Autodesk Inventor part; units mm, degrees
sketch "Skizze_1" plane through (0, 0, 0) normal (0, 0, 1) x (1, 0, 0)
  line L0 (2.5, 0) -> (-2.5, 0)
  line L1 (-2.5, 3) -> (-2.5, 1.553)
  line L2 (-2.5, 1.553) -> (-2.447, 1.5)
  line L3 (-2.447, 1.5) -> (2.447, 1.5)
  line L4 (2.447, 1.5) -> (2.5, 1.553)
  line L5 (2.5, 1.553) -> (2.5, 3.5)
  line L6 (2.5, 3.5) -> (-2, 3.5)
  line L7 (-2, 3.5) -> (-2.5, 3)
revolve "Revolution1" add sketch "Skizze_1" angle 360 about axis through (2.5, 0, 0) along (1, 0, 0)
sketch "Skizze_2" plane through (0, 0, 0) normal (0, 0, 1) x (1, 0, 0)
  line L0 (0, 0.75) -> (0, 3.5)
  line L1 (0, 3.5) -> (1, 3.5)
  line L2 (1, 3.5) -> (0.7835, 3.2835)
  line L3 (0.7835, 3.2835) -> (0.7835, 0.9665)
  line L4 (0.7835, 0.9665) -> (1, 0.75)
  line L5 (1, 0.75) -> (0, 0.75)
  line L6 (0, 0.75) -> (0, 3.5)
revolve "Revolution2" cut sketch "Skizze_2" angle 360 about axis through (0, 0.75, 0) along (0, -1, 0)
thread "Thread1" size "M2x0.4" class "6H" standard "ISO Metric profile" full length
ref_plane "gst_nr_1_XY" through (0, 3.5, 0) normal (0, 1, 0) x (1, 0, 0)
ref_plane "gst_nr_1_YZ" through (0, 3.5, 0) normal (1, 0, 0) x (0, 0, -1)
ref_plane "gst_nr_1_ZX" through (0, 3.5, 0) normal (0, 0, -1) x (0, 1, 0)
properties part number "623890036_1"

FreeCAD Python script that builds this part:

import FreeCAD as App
import Part
import Sketcher
Q = App.Units.Quantity

doc = App.newDocument("Part")
body = doc.addObject("PartDesign::Body", "Body")

# Sketch on XY plane
sketch1 = body.newObject("Sketcher::SketchObject", "Sketch")
sketch1.AttachmentSupport = (doc.getObject("XY_Plane"), [""])
sketch1.MapMode = "FlatFace"
sketch1.addGeometry([
    Part.LineSegment(App.Vector(-2, 3.5, 0), App.Vector(-2.5, 3, 0)),  # 0
    Part.LineSegment(App.Vector(-2.5, 3, 0), App.Vector(-2.5, 1.55, 0)),  # 1
    Part.LineSegment(App.Vector(-2.5, 1.55, 0), App.Vector(-2.45, 1.5, 0)),  # 2
    Part.LineSegment(App.Vector(-2.45, 1.5, 0), App.Vector(2.45, 1.5, 0)),  # 3
    Part.LineSegment(App.Vector(2.45, 1.5, 0), App.Vector(2.5, 1.55, 0)),  # 4
    Part.LineSegment(App.Vector(2.5, 1.55, 0), App.Vector(2.5, 3.5, 0)),  # 5
    Part.LineSegment(App.Vector(2.5, 3.5, 0), App.Vector(-2, 3.5, 0)),  # 6
], False)
sketch1.addConstraint([
    Sketcher.Constraint("Coincident", 0, 2, 1, 1),
    Sketcher.Constraint("Coincident", 1, 2, 2, 1),
    Sketcher.Constraint("Coincident", 2, 2, 3, 1),
    Sketcher.Constraint("Coincident", 3, 2, 4, 1),
    Sketcher.Constraint("Coincident", 4, 2, 5, 1),
    Sketcher.Constraint("Coincident", 5, 2, 6, 1),
    Sketcher.Constraint("Coincident", 6, 2, 0, 1),
    Sketcher.Constraint("Vertical", 1),
    Sketcher.Constraint("Horizontal", 3),
    Sketcher.Constraint("Vertical", 5),
    Sketcher.Constraint("Horizontal", 6),
    Sketcher.Constraint("Symmetric", 1, 2, 4, 2, -2),
    Sketcher.Constraint("Perpendicular", 0, 2),
    Sketcher.Constraint("Perpendicular", 2, 4),
    Sketcher.Constraint("Equal", 2, 4),
    Sketcher.Constraint("DistanceX", 6, 2, 6, 1, Q("4.5 mm")),
    Sketcher.Constraint("DistanceY", -1, 1, 0, 2, Q("3 mm")),
    Sketcher.Constraint("DistanceX", 6, 2, -1, 1, Q("2 mm")),
    Sketcher.Constraint("DistanceY", 3, 2, 5, 2, Q("2 mm")),
    Sketcher.Constraint("DistanceX", 3, 1, 3, 2, Q("4.894 mm")),
])
revolution = body.newObject("PartDesign::Revolution", "Revolution")
revolution.Profile = sketch1
revolution.ReferenceAxis = (sketch1, ["H_Axis"])
revolution.Angle = 360

# Sketch on XY plane
sketch2 = body.newObject("Sketcher::SketchObject", "Sketch001")
sketch2.AttachmentSupport = (doc.getObject("XY_Plane"), [""])
sketch2.MapMode = "FlatFace"
sketch2.addGeometry([
    Part.LineSegment(App.Vector(0, 3.5, 0), App.Vector(0, 0.75, 0)),  # 0
    Part.LineSegment(App.Vector(0, 0.75, 0), App.Vector(1, 0.75, 0)),  # 1
    Part.LineSegment(App.Vector(1, 0.75, 0), App.Vector(0.78, 0.97, 0)),  # 2
    Part.LineSegment(App.Vector(0.78, 0.97, 0), App.Vector(0.78, 3.28, 0)),  # 3
    Part.LineSegment(App.Vector(0.78, 3.28, 0), App.Vector(1, 3.5, 0)),  # 4
    Part.LineSegment(App.Vector(1, 3.5, 0), App.Vector(0, 3.5, 0)),  # 5
], False)
sketch2.addConstraint([
    Sketcher.Constraint("Coincident", 0, 2, 1, 1),
    Sketcher.Constraint("Coincident", 1, 2, 2, 1),
    Sketcher.Constraint("Coincident", 2, 2, 3, 1),
    Sketcher.Constraint("Coincident", 3, 2, 4, 1),
    Sketcher.Constraint("Coincident", 4, 2, 5, 1),
    Sketcher.Constraint("Coincident", 5, 2, 0, 1),
    Sketcher.Constraint("Vertical", 0),
    Sketcher.Constraint("Horizontal", 1),
    Sketcher.Constraint("Vertical", 3),
    Sketcher.Constraint("Horizontal", 5),
    Sketcher.Constraint("PointOnObject", 0, 2, -2),
    Sketcher.Constraint("Perpendicular", 2, 4),
    Sketcher.Constraint("Vertical", 1, 2, 4, 2),
    Sketcher.Constraint("Equal", 2, 4),
    Sketcher.Constraint("DistanceX", 1, 1, 1, 2, Q("1 mm")),
    Sketcher.Constraint("DistanceY", 0, 2, 0, 1, Q("2.75 mm")),
    Sketcher.Constraint("DistanceY", -1, 1, 4, 2, Q("3.5 mm")),
    Sketcher.Constraint("DistanceY", 3, 1, 3, 2, Q("2.317 mm")),
])
groove = body.newObject("PartDesign::Groove", "Groove")
groove.Profile = sketch2
groove.ReferenceAxis = (sketch2, ["V_Axis"])
groove.Angle = 360

doc.recompute()
